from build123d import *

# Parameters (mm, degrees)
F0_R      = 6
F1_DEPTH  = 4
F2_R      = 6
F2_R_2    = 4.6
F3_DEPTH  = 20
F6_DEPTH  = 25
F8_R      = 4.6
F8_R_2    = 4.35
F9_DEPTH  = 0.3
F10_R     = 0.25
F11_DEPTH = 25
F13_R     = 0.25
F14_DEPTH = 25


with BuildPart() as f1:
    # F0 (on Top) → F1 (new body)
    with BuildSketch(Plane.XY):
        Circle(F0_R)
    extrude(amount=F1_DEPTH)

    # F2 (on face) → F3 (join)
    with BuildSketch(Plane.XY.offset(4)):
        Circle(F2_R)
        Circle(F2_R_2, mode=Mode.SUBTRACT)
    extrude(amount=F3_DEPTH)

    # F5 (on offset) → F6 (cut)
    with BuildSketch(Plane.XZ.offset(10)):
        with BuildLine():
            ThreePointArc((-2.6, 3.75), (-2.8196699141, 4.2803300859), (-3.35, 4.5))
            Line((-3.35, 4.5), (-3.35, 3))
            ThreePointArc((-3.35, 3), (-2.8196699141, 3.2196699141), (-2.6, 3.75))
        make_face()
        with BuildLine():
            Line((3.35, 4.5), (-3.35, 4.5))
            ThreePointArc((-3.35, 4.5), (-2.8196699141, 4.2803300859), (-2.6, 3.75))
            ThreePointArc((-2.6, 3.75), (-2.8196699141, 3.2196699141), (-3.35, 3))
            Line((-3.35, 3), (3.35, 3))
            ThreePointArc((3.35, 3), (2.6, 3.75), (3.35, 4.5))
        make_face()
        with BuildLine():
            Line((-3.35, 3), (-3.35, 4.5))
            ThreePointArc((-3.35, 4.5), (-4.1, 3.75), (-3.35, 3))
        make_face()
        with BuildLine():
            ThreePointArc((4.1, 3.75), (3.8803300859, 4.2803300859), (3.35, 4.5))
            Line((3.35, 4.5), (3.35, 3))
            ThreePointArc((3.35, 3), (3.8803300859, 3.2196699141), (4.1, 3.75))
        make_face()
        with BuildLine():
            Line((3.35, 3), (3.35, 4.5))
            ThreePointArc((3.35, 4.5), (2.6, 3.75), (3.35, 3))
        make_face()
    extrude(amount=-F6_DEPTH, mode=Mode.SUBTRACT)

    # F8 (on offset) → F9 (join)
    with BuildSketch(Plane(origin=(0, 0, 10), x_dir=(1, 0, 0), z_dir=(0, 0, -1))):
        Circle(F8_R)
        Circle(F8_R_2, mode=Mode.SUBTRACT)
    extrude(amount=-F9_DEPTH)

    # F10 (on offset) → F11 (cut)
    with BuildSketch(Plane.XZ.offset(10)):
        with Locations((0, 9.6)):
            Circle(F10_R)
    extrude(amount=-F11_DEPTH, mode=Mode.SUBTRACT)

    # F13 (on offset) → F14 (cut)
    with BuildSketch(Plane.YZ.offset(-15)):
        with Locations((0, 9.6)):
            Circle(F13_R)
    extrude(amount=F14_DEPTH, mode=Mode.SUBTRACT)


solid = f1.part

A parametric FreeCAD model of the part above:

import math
import FreeCAD as App
import Part
import Sketcher
from FreeCAD import Vector
Q = App.Units.Quantity

doc = App.newDocument("Part")
body = doc.addObject("PartDesign::Body", "Body")

sketch1 = body.newObject("Sketcher::SketchObject", "Sketch")
sketch1.AttachmentSupport = (doc.getObject("XY_Plane"), [""])
sketch1.MapMode = "FlatFace"
sketch1.addGeometry(Part.Circle(Vector(0, 0, 0), Vector(0, 0, 1), 6), False)
sketch1.addConstraint(Sketcher.Constraint("Coincident", 0, 3, -1, 1))
sketch1.addConstraint(Sketcher.Constraint("Diameter", 0, Q("12 mm")))
pad1 = body.newObject("PartDesign::Pad", "Pad")
pad1.Profile = sketch1
pad1.Length = 4

sketch2 = body.newObject("Sketcher::SketchObject", "Sketch001")
sketch2.AttachmentSupport = (doc.getObject("XY_Plane"), [""])
sketch2.MapMode = "FlatFace"
sketch2.AttachmentOffset = App.Placement(Vector(0, 0, 4), App.Rotation())
sketch2.addGeometry(Part.Circle(Vector(0, 0, 0), Vector(0, 0, 1), 6), False)
sketch2.addGeometry(Part.Circle(Vector(0, 0, 0), Vector(0, 0, 1), 4.6), False)
sketch2.addConstraint(Sketcher.Constraint("Coincident", 0, 3, -1, 1))
sketch2.addConstraint(Sketcher.Constraint("Coincident", 1, 3, -1, 1))
sketch2.addConstraint(Sketcher.Constraint("Diameter", 0, Q("12 mm")))
sketch2.addConstraint(Sketcher.Constraint("Diameter", 1, Q("9.2 mm")))
pad2 = body.newObject("PartDesign::Pad", "Pad001")
pad2.Profile = sketch2
pad2.Length = 20

sketch3 = body.newObject("Sketcher::SketchObject", "Sketch002")
sketch3.AttachmentSupport = (doc.getObject("XZ_Plane"), [""])
sketch3.MapMode = "FlatFace"
sketch3.AttachmentOffset = App.Placement(Vector(0, 0, 10), App.Rotation())
sketch3.addGeometry(Part.LineSegment(Vector(-3.4, 3, 0), Vector(3.4, 3, 0)), False)
sketch3.addGeometry(Part.ArcOfCircle(Part.Circle(Vector(3.4, 3.8, 0), Vector(0, 0, 1), 0.8), math.radians(-90), math.radians(0)), False)
sketch3.addGeometry(Part.ArcOfCircle(Part.Circle(Vector(3.4, 3.8, 0), Vector(0, 0, 1), 0.8), math.radians(0), math.radians(90)), False)
sketch3.addGeometry(Part.LineSegment(Vector(3.4, 4.5, 0), Vector(-3.4, 4.5, 0)), False)
sketch3.addGeometry(Part.ArcOfCircle(Part.Circle(Vector(-3.4, 3.8, 0), Vector(0, 0, 1), 0.8), math.radians(90), math.radians(270)), False)
sketch3.addConstraint(Sketcher.Constraint("Tangent", 0, 2, 1, 1))
sketch3.addConstraint(Sketcher.Constraint("Tangent", 1, 2, 2, 1))
sketch3.addConstraint(Sketcher.Constraint("Tangent", 2, 2, 3, 1))
sketch3.addConstraint(Sketcher.Constraint("Tangent", 3, 2, 4, 1))
sketch3.addConstraint(Sketcher.Constraint("Tangent", 4, 2, 0, 1))
sketch3.addConstraint(Sketcher.Constraint("Horizontal", 0))
sketch3.addConstraint(Sketcher.Constraint("Horizontal", 3))
sketch3.addConstraint(Sketcher.Constraint("Equal", 1, 2))
sketch3.addConstraint(Sketcher.Constraint("Horizontal", 4, 3, 1, 2))
sketch3.addConstraint(Sketcher.Constraint("Radius", 1, Q("0.75 mm")))
sketch3.addConstraint(Sketcher.Constraint("DistanceX", 0, 1, 0, 2, Q("6.7 mm")))
sketch3.addConstraint(Sketcher.Constraint("DistanceY", -1, 1, 0, 2, Q("3 mm")))
sketch3.addConstraint(Sketcher.Constraint("DistanceX", -1, 1, 1, 2, Q("4.1 mm")))
pocket1 = body.newObject("PartDesign::Pocket", "Pocket")
pocket1.Profile = sketch3
pocket1.Length = 25

sketch4 = body.newObject("Sketcher::SketchObject", "Sketch003")
sketch4.AttachmentSupport = (doc.getObject("XY_Plane"), [""])
sketch4.MapMode = "FlatFace"
sketch4.AttachmentOffset = App.Placement(Vector(0, 0, 10), App.Rotation())
sketch4.addGeometry(Part.Circle(Vector(0, 0, 0), Vector(0, 0, 1), 4.6), False)
sketch4.addGeometry(Part.Circle(Vector(0, 0, 0), Vector(0, 0, 1), 4.3), False)
sketch4.addConstraint(Sketcher.Constraint("Coincident", 0, 3, -1, 1))
sketch4.addConstraint(Sketcher.Constraint("Coincident", 1, 3, -1, 1))
sketch4.addConstraint(Sketcher.Constraint("Diameter", 0, Q("9.2 mm")))
sketch4.addConstraint(Sketcher.Constraint("Diameter", 1, Q("8.7 mm")))
pad3 = body.newObject("PartDesign::Pad", "Pad002")
pad3.Profile = sketch4
pad3.Length = 0.3

sketch5 = body.newObject("Sketcher::SketchObject", "Sketch004")
sketch5.AttachmentSupport = (doc.getObject("XZ_Plane"), [""])
sketch5.MapMode = "FlatFace"
sketch5.AttachmentOffset = App.Placement(Vector(0, 0, 10), App.Rotation())
sketch5.addGeometry(Part.Circle(Vector(0, 9.6, 0), Vector(0, 0, 1), 0.25), False)
sketch5.addConstraint(Sketcher.Constraint("PointOnObject", 0, 3, -2))
sketch5.addConstraint(Sketcher.Constraint("Diameter", 0, Q("0.5 mm")))
sketch5.addConstraint(Sketcher.Constraint("DistanceY", -1, 1, 0, 3, Q("9.6 mm")))
pocket2 = body.newObject("PartDesign::Pocket", "Pocket001")
pocket2.Profile = sketch5
pocket2.Length = 25

sketch6 = body.newObject("Sketcher::SketchObject", "Sketch005")
sketch6.AttachmentSupport = (doc.getObject("YZ_Plane"), [""])
sketch6.MapMode = "FlatFace"
sketch6.AttachmentOffset = App.Placement(Vector(0, 0, -15), App.Rotation())
sketch6.addGeometry(Part.Circle(Vector(0, 9.6, 0), Vector(0, 0, 1), 0.25), False)
sketch6.addConstraint(Sketcher.Constraint("PointOnObject", 0, 3, -2))
sketch6.addConstraint(Sketcher.Constraint("Diameter", 0, Q("0.5 mm")))
sketch6.addConstraint(Sketcher.Constraint("DistanceY", -1, 1, 0, 3, Q("9.6 mm")))
pocket3 = body.newObject("PartDesign::Pocket", "Pocket002")
pocket3.Profile = sketch6
pocket3.Length = 25
pocket3.Reversed = True

doc.recompute()
